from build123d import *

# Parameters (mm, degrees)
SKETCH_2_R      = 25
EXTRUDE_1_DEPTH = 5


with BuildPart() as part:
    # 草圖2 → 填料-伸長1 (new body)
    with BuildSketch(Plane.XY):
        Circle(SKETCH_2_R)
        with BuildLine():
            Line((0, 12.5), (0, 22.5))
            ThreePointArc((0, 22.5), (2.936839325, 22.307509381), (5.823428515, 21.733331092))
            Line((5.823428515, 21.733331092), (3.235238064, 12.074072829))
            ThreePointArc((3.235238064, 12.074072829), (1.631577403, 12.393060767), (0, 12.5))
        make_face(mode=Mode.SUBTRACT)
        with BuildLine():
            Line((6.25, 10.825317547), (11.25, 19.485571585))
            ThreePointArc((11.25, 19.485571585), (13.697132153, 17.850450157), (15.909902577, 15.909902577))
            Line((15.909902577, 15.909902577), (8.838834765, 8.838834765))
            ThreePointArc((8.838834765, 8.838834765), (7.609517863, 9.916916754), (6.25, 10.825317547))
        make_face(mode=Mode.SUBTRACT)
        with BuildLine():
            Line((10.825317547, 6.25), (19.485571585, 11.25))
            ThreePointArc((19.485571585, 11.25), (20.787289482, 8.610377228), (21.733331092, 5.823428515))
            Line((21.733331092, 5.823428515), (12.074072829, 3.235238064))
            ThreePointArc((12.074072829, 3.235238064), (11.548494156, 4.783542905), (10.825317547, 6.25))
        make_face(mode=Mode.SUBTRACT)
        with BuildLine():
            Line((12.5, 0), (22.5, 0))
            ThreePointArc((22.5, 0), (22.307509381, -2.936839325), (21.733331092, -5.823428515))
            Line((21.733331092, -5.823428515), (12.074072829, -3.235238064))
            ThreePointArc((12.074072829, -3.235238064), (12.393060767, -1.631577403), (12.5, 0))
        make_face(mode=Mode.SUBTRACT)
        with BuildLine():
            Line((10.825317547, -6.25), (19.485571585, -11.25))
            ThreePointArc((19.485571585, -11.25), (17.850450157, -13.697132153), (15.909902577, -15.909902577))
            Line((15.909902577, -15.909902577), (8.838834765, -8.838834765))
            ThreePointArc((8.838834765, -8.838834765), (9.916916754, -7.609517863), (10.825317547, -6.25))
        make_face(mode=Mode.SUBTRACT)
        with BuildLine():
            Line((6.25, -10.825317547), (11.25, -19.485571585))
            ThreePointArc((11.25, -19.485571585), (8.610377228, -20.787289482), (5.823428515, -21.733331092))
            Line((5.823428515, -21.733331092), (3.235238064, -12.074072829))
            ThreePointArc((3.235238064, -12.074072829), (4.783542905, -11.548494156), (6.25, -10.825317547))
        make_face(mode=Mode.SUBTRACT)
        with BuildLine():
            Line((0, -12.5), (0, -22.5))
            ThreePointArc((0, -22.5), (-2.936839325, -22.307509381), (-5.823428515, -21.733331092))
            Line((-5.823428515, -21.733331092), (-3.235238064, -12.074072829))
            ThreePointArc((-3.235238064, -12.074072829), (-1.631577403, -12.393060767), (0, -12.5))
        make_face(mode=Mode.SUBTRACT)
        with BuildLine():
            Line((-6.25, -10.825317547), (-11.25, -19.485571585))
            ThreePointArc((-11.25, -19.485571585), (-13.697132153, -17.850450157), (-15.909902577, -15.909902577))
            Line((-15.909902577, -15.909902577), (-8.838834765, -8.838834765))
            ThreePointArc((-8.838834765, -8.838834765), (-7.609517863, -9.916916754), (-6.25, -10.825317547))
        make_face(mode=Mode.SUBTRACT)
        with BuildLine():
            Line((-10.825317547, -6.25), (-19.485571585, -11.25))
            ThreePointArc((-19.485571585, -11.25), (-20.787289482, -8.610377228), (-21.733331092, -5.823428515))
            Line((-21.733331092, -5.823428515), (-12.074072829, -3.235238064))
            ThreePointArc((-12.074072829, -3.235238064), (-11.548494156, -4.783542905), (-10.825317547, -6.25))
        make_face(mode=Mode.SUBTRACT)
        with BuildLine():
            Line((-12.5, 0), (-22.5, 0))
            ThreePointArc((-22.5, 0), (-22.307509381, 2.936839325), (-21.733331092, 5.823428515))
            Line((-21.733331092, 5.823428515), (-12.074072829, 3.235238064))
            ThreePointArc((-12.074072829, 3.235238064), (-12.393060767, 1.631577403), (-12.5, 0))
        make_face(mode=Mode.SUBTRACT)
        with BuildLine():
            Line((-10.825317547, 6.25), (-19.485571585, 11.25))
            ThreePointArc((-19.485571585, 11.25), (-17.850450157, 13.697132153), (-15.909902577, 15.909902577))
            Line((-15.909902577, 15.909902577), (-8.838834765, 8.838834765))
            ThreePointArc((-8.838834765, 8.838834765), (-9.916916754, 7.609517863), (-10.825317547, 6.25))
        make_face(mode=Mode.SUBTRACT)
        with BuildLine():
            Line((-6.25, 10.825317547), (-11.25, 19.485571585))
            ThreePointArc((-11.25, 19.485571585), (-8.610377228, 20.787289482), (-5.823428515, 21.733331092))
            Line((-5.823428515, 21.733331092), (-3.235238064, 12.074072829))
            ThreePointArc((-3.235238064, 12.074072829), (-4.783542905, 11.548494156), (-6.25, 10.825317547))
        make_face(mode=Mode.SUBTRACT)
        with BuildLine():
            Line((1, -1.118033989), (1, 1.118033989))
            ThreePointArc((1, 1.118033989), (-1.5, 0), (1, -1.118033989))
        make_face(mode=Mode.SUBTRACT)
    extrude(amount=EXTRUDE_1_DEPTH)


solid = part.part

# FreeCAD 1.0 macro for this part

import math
import FreeCAD as App
import Part
import Sketcher

V = App.Vector
Q = App.Units.Quantity

doc = App.newDocument("Part")
body = doc.addObject("PartDesign::Body", "Body")

sketch1 = body.newObject("Sketcher::SketchObject", "Sketch")
sketch1.AttachmentSupport = (doc.getObject("XY_Plane"), [""])
sketch1.MapMode = "FlatFace"
sketch1.addGeometry(Part.Circle(V(0, 0, 0), V(0, 0, 1), 25), False)
sketch1.addGeometry(Part.ArcOfCircle(Part.Circle(V(0, 0, 0), V(0, 0, 1), 12.5), math.radians(-105), math.radians(-90)), False)
sketch1.addGeometry(Part.LineSegment(V(0, -12.5, 0), V(0, -22.5, 0)), False)
sketch1.addGeometry(Part.ArcOfCircle(Part.Circle(V(0, 0, 0), V(0, 0, 1), 22.5), math.radians(-105), math.radians(-90)), False)
sketch1.addGeometry(Part.LineSegment(V(-5.8, -21.7, 0), V(-3.2, -12.1, 0)), False)
sketch1.addGeometry(Part.ArcOfCircle(Part.Circle(V(0, 0, 0), V(0, 0, 1), 12.5), math.radians(-135), math.radians(-120)), False)
sketch1.addGeometry(Part.LineSegment(V(-6.2, -10.8, 0), V(-11.2, -19.5, 0)), False)
sketch1.addGeometry(Part.ArcOfCircle(Part.Circle(V(0, 0, 0), V(0, 0, 1), 22.5), math.radians(-135), math.radians(-120)), False)
sketch1.addGeometry(Part.LineSegment(V(-15.9, -15.9, 0), V(-8.8, -8.8, 0)), False)
sketch1.addGeometry(Part.ArcOfCircle(Part.Circle(V(0, 0, 0), V(0, 0, 1), 12.5), math.radians(-165), math.radians(-150)), False)
sketch1.addGeometry(Part.LineSegment(V(-10.8, -6.2, 0), V(-19.5, -11.2, 0)), False)
sketch1.addGeometry(Part.ArcOfCircle(Part.Circle(V(0, 0, 0), V(0, 0, 1), 22.5), math.radians(-165), math.radians(-150)), False)
sketch1.addGeometry(Part.LineSegment(V(-21.7, -5.8, 0), V(-12.1, -3.2, 0)), False)
sketch1.addGeometry(Part.ArcOfCircle(Part.Circle(V(0, 0, 0), V(0, 0, 1), 12.5), math.radians(-75), math.radians(-60)), False)
sketch1.addGeometry(Part.LineSegment(V(6.2, -10.8, 0), V(11.2, -19.5, 0)), False)
sketch1.addGeometry(Part.ArcOfCircle(Part.Circle(V(0, 0, 0), V(0, 0, 1), 22.5), math.radians(-75), math.radians(-60)), False)
sketch1.addGeometry(Part.LineSegment(V(5.8, -21.7, 0), V(3.2, -12.1, 0)), False)
sketch1.addGeometry(Part.ArcOfCircle(Part.Circle(V(0, 0, 0), V(0, 0, 1), 12.5), math.radians(-45), math.radians(-30)), False)
sketch1.addGeometry(Part.LineSegment(V(10.8, -6.2, 0), V(19.5, -11.2, 0)), False)
sketch1.addGeometry(Part.ArcOfCircle(Part.Circle(V(0, 0, 0), V(0, 0, 1), 22.5), math.radians(-45), math.radians(-30)), False)
sketch1.addGeometry(Part.LineSegment(V(15.9, -15.9, 0), V(8.8, -8.8, 0)), False)
sketch1.addGeometry(Part.ArcOfCircle(Part.Circle(V(0, 0, 0), V(0, 0, 1), 12.5), math.radians(-15), math.radians(0)), False)
sketch1.addGeometry(Part.LineSegment(V(12.5, 0, 0), V(22.5, 0, 0)), False)
sketch1.addGeometry(Part.ArcOfCircle(Part.Circle(V(0, 0, 0), V(0, 0, 1), 22.5), math.radians(-15), math.radians(0)), False)
sketch1.addGeometry(Part.LineSegment(V(21.7, -5.8, 0), V(12.1, -3.2, 0)), False)
sketch1.addGeometry(Part.ArcOfCircle(Part.Circle(V(0, 0, 0), V(0, 0, 1), 12.5), math.radians(165), math.radians(180)), False)
sketch1.addGeometry(Part.LineSegment(V(-12.5, 0, 0), V(-22.5, 0, 0)), False)
sketch1.addGeometry(Part.ArcOfCircle(Part.Circle(V(0, 0, 0), V(0, 0, 1), 22.5), math.radians(165), math.radians(180)), False)
sketch1.addGeometry(Part.LineSegment(V(-21.7, 5.8, 0), V(-12.1, 3.2, 0)), False)
sketch1.addGeometry(Part.ArcOfCircle(Part.Circle(V(0, 0, 0), V(0, 0, 1), 12.5), math.radians(135), math.radians(150)), False)
sketch1.addGeometry(Part.LineSegment(V(-10.8, 6.2, 0), V(-19.5, 11.2, 0)), False)
sketch1.addGeometry(Part.ArcOfCircle(Part.Circle(V(0, 0, 0), V(0, 0, 1), 22.5), math.radians(135), math.radians(150)), False)
sketch1.addGeometry(Part.LineSegment(V(-15.9, 15.9, 0), V(-8.8, 8.8, 0)), False)
sketch1.addGeometry(Part.LineSegment(V(1, 1.1, 0), V(1, -1.1, 0)), False)
sketch1.addGeometry(Part.ArcOfCircle(Part.Circle(V(0, 0, 0), V(0, 0, 1), 1.5), math.radians(48), math.radians(312)), False)
sketch1.addGeometry(Part.ArcOfCircle(Part.Circle(V(0, 0, 0), V(0, 0, 1), 12.5), math.radians(105), math.radians(120)), False)
sketch1.addGeometry(Part.LineSegment(V(-6.2, 10.8, 0), V(-11.2, 19.5, 0)), False)
sketch1.addGeometry(Part.ArcOfCircle(Part.Circle(V(0, 0, 0), V(0, 0, 1), 22.5), math.radians(105), math.radians(120)), False)
sketch1.addGeometry(Part.LineSegment(V(-5.8, 21.7, 0), V(-3.2, 12.1, 0)), False)
sketch1.addGeometry(Part.ArcOfCircle(Part.Circle(V(0, 0, 0), V(0, 0, 1), 12.5), math.radians(15), math.radians(30)), False)
sketch1.addGeometry(Part.LineSegment(V(10.8, 6.2, 0), V(19.5, 11.2, 0)), False)
sketch1.addGeometry(Part.ArcOfCircle(Part.Circle(V(0, 0, 0), V(0, 0, 1), 22.5), math.radians(15), math.radians(30)), False)
sketch1.addGeometry(Part.LineSegment(V(21.7, 5.8, 0), V(12.1, 3.2, 0)), False)
sketch1.addGeometry(Part.ArcOfCircle(Part.Circle(V(0, 0, 0), V(0, 0, 1), 12.5), math.radians(45), math.radians(60)), False)
sketch1.addGeometry(Part.LineSegment(V(6.2, 10.8, 0), V(11.2, 19.5, 0)), False)
sketch1.addGeometry(Part.ArcOfCircle(Part.Circle(V(0, 0, 0), V(0, 0, 1), 22.5), math.radians(45), math.radians(60)), False)
sketch1.addGeometry(Part.LineSegment(V(15.9, 15.9, 0), V(8.8, 8.8, 0)), False)
sketch1.addGeometry(Part.ArcOfCircle(Part.Circle(V(0, 0, 0), V(0, 0, 1), 12.5), math.radians(75), math.radians(90)), False)
sketch1.addGeometry(Part.LineSegment(V(0, 12.5, 0), V(0, 22.5, 0)), False)
sketch1.addGeometry(Part.ArcOfCircle(Part.Circle(V(0, 0, 0), V(0, 0, 1), 22.5), math.radians(75), math.radians(90)), False)
sketch1.addGeometry(Part.LineSegment(V(5.8, 21.7, 0), V(3.2, 12.1, 0)), False)
sketch1.addConstraint(Sketcher.Constraint("Coincident", 1, 2, 2, 1))
sketch1.addConstraint(Sketcher.Constraint("Coincident", 2, 2, 3, 2))
sketch1.addConstraint(Sketcher.Constraint("Coincident", 3, 1, 4, 1))
sketch1.addConstraint(Sketcher.Constraint("Coincident", 4, 2, 1, 1))
sketch1.addConstraint(Sketcher.Constraint("Coincident", 5, 2, 6, 1))
sketch1.addConstraint(Sketcher.Constraint("Coincident", 6, 2, 7, 2))
sketch1.addConstraint(Sketcher.Constraint("Coincident", 7, 1, 8, 1))
sketch1.addConstraint(Sketcher.Constraint("Coincident", 8, 2, 5, 1))
sketch1.addConstraint(Sketcher.Constraint("Coincident", 9, 2, 10, 1))
sketch1.addConstraint(Sketcher.Constraint("Coincident", 10, 2, 11, 2))
sketch1.addConstraint(Sketcher.Constraint("Coincident", 11, 1, 12, 1))
sketch1.addConstraint(Sketcher.Constraint("Coincident", 12, 2, 9, 1))
sketch1.addConstraint(Sketcher.Constraint("Coincident", 13, 2, 14, 1))
sketch1.addConstraint(Sketcher.Constraint("Coincident", 14, 2, 15, 2))
sketch1.addConstraint(Sketcher.Constraint("Coincident", 15, 1, 16, 1))
sketch1.addConstraint(Sketcher.Constraint("Coincident", 16, 2, 13, 1))
sketch1.addConstraint(Sketcher.Constraint("Coincident", 17, 2, 18, 1))
sketch1.addConstraint(Sketcher.Constraint("Coincident", 18, 2, 19, 2))
sketch1.addConstraint(Sketcher.Constraint("Coincident", 19, 1, 20, 1))
sketch1.addConstraint(Sketcher.Constraint("Coincident", 20, 2, 17, 1))
sketch1.addConstraint(Sketcher.Constraint("Coincident", 21, 2, 22, 1))
sketch1.addConstraint(Sketcher.Constraint("Coincident", 22, 2, 23, 2))
sketch1.addConstraint(Sketcher.Constraint("Coincident", 23, 1, 24, 1))
sketch1.addConstraint(Sketcher.Constraint("Coincident", 24, 2, 21, 1))
sketch1.addConstraint(Sketcher.Constraint("Coincident", 25, 2, 26, 1))
sketch1.addConstraint(Sketcher.Constraint("Coincident", 26, 2, 27, 2))
sketch1.addConstraint(Sketcher.Constraint("Coincident", 27, 1, 28, 1))
sketch1.addConstraint(Sketcher.Constraint("Coincident", 28, 2, 25, 1))
sketch1.addConstraint(Sketcher.Constraint("Coincident", 29, 2, 30, 1))
sketch1.addConstraint(Sketcher.Constraint("Coincident", 30, 2, 31, 2))
sketch1.addConstraint(Sketcher.Constraint("Coincident", 31, 1, 32, 1))
sketch1.addConstraint(Sketcher.Constraint("Coincident", 32, 2, 29, 1))
sketch1.addConstraint(Sketcher.Constraint("Coincident", 33, 1, 34, 1))
sketch1.addConstraint(Sketcher.Constraint("Coincident", 34, 2, 33, 2))
sketch1.addConstraint(Sketcher.Constraint("Coincident", 35, 2, 36, 1))
sketch1.addConstraint(Sketcher.Constraint("Coincident", 36, 2, 37, 2))
sketch1.addConstraint(Sketcher.Constraint("Coincident", 37, 1, 38, 1))
sketch1.addConstraint(Sketcher.Constraint("Coincident", 38, 2, 35, 1))
sketch1.addConstraint(Sketcher.Constraint("Coincident", 39, 2, 40, 1))
sketch1.addConstraint(Sketcher.Constraint("Coincident", 40, 2, 41, 2))
sketch1.addConstraint(Sketcher.Constraint("Coincident", 41, 1, 42, 1))
sketch1.addConstraint(Sketcher.Constraint("Coincident", 42, 2, 39, 1))
sketch1.addConstraint(Sketcher.Constraint("Coincident", 43, 2, 44, 1))
sketch1.addConstraint(Sketcher.Constraint("Coincident", 44, 2, 45, 2))
sketch1.addConstraint(Sketcher.Constraint("Coincident", 45, 1, 46, 1))
sketch1.addConstraint(Sketcher.Constraint("Coincident", 46, 2, 43, 1))
sketch1.addConstraint(Sketcher.Constraint("Coincident", 47, 2, 48, 1))
sketch1.addConstraint(Sketcher.Constraint("Coincident", 48, 2, 49, 2))
sketch1.addConstraint(Sketcher.Constraint("Coincident", 49, 1, 50, 1))
sketch1.addConstraint(Sketcher.Constraint("Coincident", 50, 2, 47, 1))
sketch1.addConstraint(Sketcher.Constraint("Vertical", 2))
sketch1.addConstraint(Sketcher.Constraint("Horizontal", 22))
sketch1.addConstraint(Sketcher.Constraint("Horizontal", 26))
sketch1.addConstraint(Sketcher.Constraint("Vertical", 33))
sketch1.addConstraint(Sketcher.Constraint("Vertical", 48))
sketch1.addConstraint(Sketcher.Constraint("Coincident", 0, 3, -1, 1))
sketch1.addConstraint(Sketcher.Constraint("Coincident", 1, 3, -1, 1))
sketch1.addConstraint(Sketcher.Constraint("Coincident", 3, 3, -1, 1))
sketch1.addConstraint(Sketcher.Constraint("Coincident", 5, 3, -1, 1))
sketch1.addConstraint(Sketcher.Constraint("Coincident", 7, 3, -1, 1))
sketch1.addConstraint(Sketcher.Constraint("Coincident", 9, 3, -1, 1))
sketch1.addConstraint(Sketcher.Constraint("Coincident", 11, 3, -1, 1))
sketch1.addConstraint(Sketcher.Constraint("Coincident", 13, 3, -1, 1))
sketch1.addConstraint(Sketcher.Constraint("Coincident", 15, 3, -1, 1))
sketch1.addConstraint(Sketcher.Constraint("Coincident", 17, 3, -1, 1))
sketch1.addConstraint(Sketcher.Constraint("Coincident", 19, 3, -1, 1))
sketch1.addConstraint(Sketcher.Constraint("Coincident", 21, 3, -1, 1))
sketch1.addConstraint(Sketcher.Constraint("Coincident", 23, 3, -1, 1))
sketch1.addConstraint(Sketcher.Constraint("Coincident", 25, 3, -1, 1))
sketch1.addConstraint(Sketcher.Constraint("Coincident", 27, 3, -1, 1))
sketch1.addConstraint(Sketcher.Constraint("Coincident", 29, 3, -1, 1))
sketch1.addConstraint(Sketcher.Constraint("Coincident", 31, 3, -1, 1))
sketch1.addConstraint(Sketcher.Constraint("Coincident", 34, 3, -1, 1))
sketch1.addConstraint(Sketcher.Constraint("Coincident", 35, 3, -1, 1))
sketch1.addConstraint(Sketcher.Constraint("Coincident", 37, 3, -1, 1))
sketch1.addConstraint(Sketcher.Constraint("Coincident", 39, 3, -1, 1))
sketch1.addConstraint(Sketcher.Constraint("Coincident", 41, 3, -1, 1))
sketch1.addConstraint(Sketcher.Constraint("Coincident", 43, 3, -1, 1))
sketch1.addConstraint(Sketcher.Constraint("Coincident", 45, 3, -1, 1))
sketch1.addConstraint(Sketcher.Constraint("Coincident", 47, 3, -1, 1))
sketch1.addConstraint(Sketcher.Constraint("Coincident", 49, 3, -1, 1))
sketch1.addConstraint(Sketcher.Constraint("Equal", 1, 5))
sketch1.addConstraint(Sketcher.Constraint("Equal", 3, 7))
sketch1.addConstraint(Sketcher.Constraint("Equal", 5, 9))
sketch1.addConstraint(Sketcher.Constraint("Equal", 7, 11))
sketch1.addConstraint(Sketcher.Constraint("Equal", 9, 13))
sketch1.addConstraint(Sketcher.Constraint("Equal", 11, 15))
sketch1.addConstraint(Sketcher.Constraint("Equal", 13, 17))
sketch1.addConstraint(Sketcher.Constraint("Equal", 15, 19))
sketch1.addConstraint(Sketcher.Constraint("Equal", 17, 21))
sketch1.addConstraint(Sketcher.Constraint("Equal", 19, 23))
sketch1.addConstraint(Sketcher.Constraint("Equal", 21, 25))
sketch1.addConstraint(Sketcher.Constraint("Equal", 23, 27))
sketch1.addConstraint(Sketcher.Constraint("Equal", 25, 29))
sketch1.addConstraint(Sketcher.Constraint("Equal", 27, 31))
sketch1.addConstraint(Sketcher.Constraint("Equal", 29, 35))
sketch1.addConstraint(Sketcher.Constraint("Equal", 31, 37))
sketch1.addConstraint(Sketcher.Constraint("Equal", 35, 39))
sketch1.addConstraint(Sketcher.Constraint("Equal", 37, 41))
sketch1.addConstraint(Sketcher.Constraint("Equal", 39, 43))
sketch1.addConstraint(Sketcher.Constraint("Equal", 41, 45))
sketch1.addConstraint(Sketcher.Constraint("Equal", 43, 47))
sketch1.addConstraint(Sketcher.Constraint("Equal", 45, 49))
sketch1.addConstraint(Sketcher.Constraint("PointOnObject", 1, 2, -2))
sketch1.addConstraint(Sketcher.Constraint("PointOnObject", 21, 2, -1))
sketch1.addConstraint(Sketcher.Constraint("PointOnObject", 25, 2, -1))
sketch1.addConstraint(Sketcher.Constraint("PointOnObject", 47, 2, -2))
sketch1.addConstraint(Sketcher.Constraint("Perpendicular", 10, 14))
sketch1.addConstraint(Sketcher.Constraint("Perpendicular", 12, 16))
sketch1.addConstraint(Sketcher.Constraint("Perpendicular", 6, 18))
sketch1.addConstraint(Sketcher.Constraint("Perpendicular", 8, 20))
sketch1.addConstraint(Sketcher.Constraint("Perpendicular", 4, 24))
sketch1.addConstraint(Sketcher.Constraint("Parallel", 24, 28))
sketch1.addConstraint(Sketcher.Constraint("Parallel", 18, 30))
sketch1.addConstraint(Sketcher.Constraint("Parallel", 20, 32))
sketch1.addConstraint(Sketcher.Constraint("Parallel", 14, 36))
sketch1.addConstraint(Sketcher.Constraint("Parallel", 16, 38))
sketch1.addConstraint(Sketcher.Constraint("Perpendicular", 36, 40))
sketch1.addConstraint(Sketcher.Constraint("Perpendicular", 38, 42))
sketch1.addConstraint(Sketcher.Constraint("Perpendicular", 30, 44))
sketch1.addConstraint(Sketcher.Constraint("Perpendicular", 32, 46))
sketch1.addConstraint(Sketcher.Constraint("Perpendicular", 28, 50))
sketch1.addConstraint(Sketcher.Constraint("Horizontal", 5, 2, 13, 2))
sketch1.addConstraint(Sketcher.Constraint("Horizontal", 6, 2, 14, 2))
sketch1.addConstraint(Sketcher.Constraint("Horizontal", 3, 1, 15, 1))
sketch1.addConstraint(Sketcher.Constraint("Horizontal", 4, 2, 16, 2))
sketch1.addConstraint(Sketcher.Constraint("Horizontal", 9, 2, 17, 2))
sketch1.addConstraint(Sketcher.Constraint("Horizontal", 7, 1, 19, 1))
sketch1.addConstraint(Sketcher.Constraint("Horizontal", 8, 2, 20, 2))
sketch1.addConstraint(Sketcher.Constraint("Horizontal", 11, 1, 23, 1))
sketch1.addConstraint(Sketcher.Constraint("Horizontal", 29, 2, 39, 2))
sketch1.addConstraint(Sketcher.Constraint("Horizontal", 27, 1, 41, 1))
sketch1.addConstraint(Sketcher.Constraint("Horizontal", 35, 2, 43, 2))
sketch1.addConstraint(Sketcher.Constraint("Horizontal", 31, 1, 45, 1))
sketch1.addConstraint(Sketcher.Constraint("Horizontal", 37, 1, 49, 1))
sketch1.addConstraint(Sketcher.Constraint("Vertical", 11, 1, 27, 1))
sketch1.addConstraint(Sketcher.Constraint("Vertical", 9, 2, 29, 2))
sketch1.addConstraint(Sketcher.Constraint("Vertical", 7, 1, 31, 1))
sketch1.addConstraint(Sketcher.Constraint("Vertical", 5, 2, 35, 2))
sketch1.addConstraint(Sketcher.Constraint("Vertical", 3, 1, 37, 1))
sketch1.addConstraint(Sketcher.Constraint("Diameter", 0, 50.0))
sketch1.addConstraint(Sketcher.Constraint("Radius", 1, 12.5))
sketch1.addConstraint(Sketcher.Constraint("Radius", 3, 22.5))
sketch1.addConstraint(Sketcher.Constraint("Radius", 34, 1.5))
sketch1.addConstraint(Sketcher.Constraint("Angle", 4, Q("75 deg")))
sketch1.addConstraint(Sketcher.Constraint("Angle", 6, Q("-120 deg")))
sketch1.addConstraint(Sketcher.Constraint("DistanceX", -1, 1, 33, 1, 1.0))
sketch1.addConstraint(Sketcher.Constraint("DistanceX", 5, 2, -1, 1, 6.25))
sketch1.addConstraint(Sketcher.Constraint("DistanceY", 9, 2, -1, 1, 6.25))
sketch1.addConstraint(Sketcher.Constraint("DistanceX", 3, 1, -1, 1, 5.823429))
sketch1.addConstraint(Sketcher.Constraint("DistanceX", 11, 1, -1, 1, 21.733331))
sketch1.addConstraint(Sketcher.Constraint("DistanceX", 7, 1, -1, 1, 15.909903))
pad1 = body.newObject("PartDesign::Pad", "Pad")
pad1.Profile = sketch1
pad1.Length = 5

doc.recompute()
